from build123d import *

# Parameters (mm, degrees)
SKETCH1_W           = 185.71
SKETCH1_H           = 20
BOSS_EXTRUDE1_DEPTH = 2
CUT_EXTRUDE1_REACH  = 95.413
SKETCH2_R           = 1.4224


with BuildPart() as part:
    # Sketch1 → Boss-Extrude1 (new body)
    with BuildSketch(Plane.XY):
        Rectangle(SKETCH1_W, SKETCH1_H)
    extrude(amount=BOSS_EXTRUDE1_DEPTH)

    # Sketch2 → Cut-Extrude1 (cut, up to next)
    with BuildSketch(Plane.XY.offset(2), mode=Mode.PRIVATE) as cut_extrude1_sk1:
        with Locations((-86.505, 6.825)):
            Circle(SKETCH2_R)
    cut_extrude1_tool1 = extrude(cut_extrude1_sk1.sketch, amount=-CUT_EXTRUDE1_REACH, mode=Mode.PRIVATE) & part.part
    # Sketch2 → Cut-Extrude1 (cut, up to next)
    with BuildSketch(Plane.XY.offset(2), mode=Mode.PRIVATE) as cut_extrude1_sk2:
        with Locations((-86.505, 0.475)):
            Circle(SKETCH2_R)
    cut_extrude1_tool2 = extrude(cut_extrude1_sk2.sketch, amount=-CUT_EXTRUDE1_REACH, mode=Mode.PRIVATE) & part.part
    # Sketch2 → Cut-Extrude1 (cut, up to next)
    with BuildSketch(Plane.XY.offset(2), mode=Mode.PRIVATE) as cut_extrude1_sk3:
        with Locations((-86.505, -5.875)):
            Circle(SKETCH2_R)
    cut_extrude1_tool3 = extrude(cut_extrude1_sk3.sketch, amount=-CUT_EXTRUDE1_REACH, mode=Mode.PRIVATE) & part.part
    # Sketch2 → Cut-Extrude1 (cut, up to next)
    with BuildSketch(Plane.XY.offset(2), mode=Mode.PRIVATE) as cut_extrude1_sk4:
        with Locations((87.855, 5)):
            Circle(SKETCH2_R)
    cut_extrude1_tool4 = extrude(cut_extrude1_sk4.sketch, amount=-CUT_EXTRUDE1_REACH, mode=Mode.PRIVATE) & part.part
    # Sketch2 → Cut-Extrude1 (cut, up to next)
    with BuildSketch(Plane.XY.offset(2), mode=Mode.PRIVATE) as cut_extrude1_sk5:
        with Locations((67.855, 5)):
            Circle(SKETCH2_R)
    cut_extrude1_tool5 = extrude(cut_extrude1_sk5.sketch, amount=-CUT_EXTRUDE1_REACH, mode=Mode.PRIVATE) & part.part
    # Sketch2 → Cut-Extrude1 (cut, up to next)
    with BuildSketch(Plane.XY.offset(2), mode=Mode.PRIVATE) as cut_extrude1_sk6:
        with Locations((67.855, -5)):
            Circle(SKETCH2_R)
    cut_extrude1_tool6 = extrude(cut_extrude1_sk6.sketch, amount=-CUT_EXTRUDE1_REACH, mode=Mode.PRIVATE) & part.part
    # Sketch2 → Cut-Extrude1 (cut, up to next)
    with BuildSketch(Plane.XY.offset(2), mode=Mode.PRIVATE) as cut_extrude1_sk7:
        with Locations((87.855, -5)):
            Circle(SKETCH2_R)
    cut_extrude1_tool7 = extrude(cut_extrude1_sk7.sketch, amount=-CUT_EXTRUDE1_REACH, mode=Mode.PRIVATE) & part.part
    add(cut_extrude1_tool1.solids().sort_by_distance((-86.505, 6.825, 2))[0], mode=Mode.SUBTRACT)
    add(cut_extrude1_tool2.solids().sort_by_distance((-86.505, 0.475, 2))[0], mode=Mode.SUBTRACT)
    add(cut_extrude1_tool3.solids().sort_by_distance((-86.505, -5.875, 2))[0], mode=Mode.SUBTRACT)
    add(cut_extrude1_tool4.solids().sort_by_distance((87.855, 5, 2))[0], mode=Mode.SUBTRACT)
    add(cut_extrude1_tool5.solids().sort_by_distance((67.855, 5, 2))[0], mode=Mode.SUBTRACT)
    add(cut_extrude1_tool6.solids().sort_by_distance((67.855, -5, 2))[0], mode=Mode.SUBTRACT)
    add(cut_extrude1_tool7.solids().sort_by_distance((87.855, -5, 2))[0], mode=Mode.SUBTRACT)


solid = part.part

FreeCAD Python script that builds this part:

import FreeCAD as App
import Part
import Sketcher

V = App.Vector


def add_polygon(sketch, points):
    """Adds a closed chain of lines whose ends are joined by coincident constraints."""
    first, n = sketch.GeometryCount, len(points)
    for a, b in zip(points, points[1:] + points[:1]):
        sketch.addGeometry(Part.LineSegment(App.Vector(*a, 0), App.Vector(*b, 0)), False)
    for i in range(n):
        sketch.addConstraint(Sketcher.Constraint("Coincident", first + i, 2, first + (i + 1) % n, 1))

doc = App.newDocument("Part")
body = doc.addObject("PartDesign::Body", "Body")

sketch1 = body.newObject("Sketcher::SketchObject", "Sketch")
sketch1.AttachmentSupport = (doc.getObject("XY_Plane"), [""])
sketch1.MapMode = "FlatFace"
add_polygon(sketch1, [(-93, 10), (-93, -10), (93, -10), (93, 10)])
sketch1.addConstraint([
    Sketcher.Constraint("Vertical", 0),
    Sketcher.Constraint("Horizontal", 1),
    Sketcher.Constraint("Vertical", 2),
    Sketcher.Constraint("Horizontal", 3),
    Sketcher.Constraint("Symmetric", 0, 2, 2, 2, -1, 1),
    Sketcher.Constraint("DistanceY", 0, 2, 0, 1, 20.0),
    Sketcher.Constraint("DistanceX", 1, 1, 1, 2, 185.71),
])
pad1 = body.newObject("PartDesign::Pad", "Pad")
pad1.Profile = sketch1
pad1.Length = 2

sketch2 = body.newObject("Sketcher::SketchObject", "Sketch001")
sketch2.AttachmentSupport = (doc.getObject("XY_Plane"), [""])
sketch2.MapMode = "FlatFace"
sketch2.AttachmentOffset = App.Placement(V(0, 0, 2), App.Rotation())
sketch2.addGeometry(Part.Circle(V(-86.5, 6.8, 0), V(0, 0, 1), 1.4), False)
sketch2.addConstraint([
    Sketcher.Constraint("Diameter", 0, 2.8448),
    Sketcher.Constraint("DistanceX", 0, 3, -1, 1, 86.505),
    Sketcher.Constraint("DistanceY", -1, 1, 0, 3, 6.825),
])
pocket1 = body.newObject("PartDesign::Pocket", "Pocket")
pocket1.Profile = sketch2
pocket1.Type = "UpToFirst"

sketch3 = body.newObject("Sketcher::SketchObject", "Sketch002")
sketch3.AttachmentSupport = (doc.getObject("XY_Plane"), [""])
sketch3.MapMode = "FlatFace"
sketch3.AttachmentOffset = App.Placement(V(0, 0, 2), App.Rotation())
sketch3.addGeometry(Part.Circle(V(-86.5, 0.5, 0), V(0, 0, 1), 1.4), False)
sketch3.addConstraint([
    Sketcher.Constraint("Diameter", 0, 2.8448),
    Sketcher.Constraint("DistanceX", 0, 3, -1, 1, 86.505),
    Sketcher.Constraint("DistanceY", -1, 1, 0, 3, 0.475),
])
pocket2 = body.newObject("PartDesign::Pocket", "Pocket001")
pocket2.Profile = sketch3
pocket2.Type = "UpToFirst"

sketch4 = body.newObject("Sketcher::SketchObject", "Sketch003")
sketch4.AttachmentSupport = (doc.getObject("XY_Plane"), [""])
sketch4.MapMode = "FlatFace"
sketch4.AttachmentOffset = App.Placement(V(0, 0, 2), App.Rotation())
sketch4.addGeometry(Part.Circle(V(-86.5, -5.9, 0), V(0, 0, 1), 1.4), False)
sketch4.addConstraint([
    Sketcher.Constraint("Diameter", 0, 2.8448),
    Sketcher.Constraint("DistanceX", 0, 3, -1, 1, 86.505),
    Sketcher.Constraint("DistanceY", 0, 3, -1, 1, 5.875),
])
pocket3 = body.newObject("PartDesign::Pocket", "Pocket002")
pocket3.Profile = sketch4
pocket3.Type = "UpToFirst"

sketch5 = body.newObject("Sketcher::SketchObject", "Sketch004")
sketch5.AttachmentSupport = (doc.getObject("XY_Plane"), [""])
sketch5.MapMode = "FlatFace"
sketch5.AttachmentOffset = App.Placement(V(0, 0, 2), App.Rotation())
sketch5.addGeometry(Part.Circle(V(87.9, 5, 0), V(0, 0, 1), 1.4), False)
sketch5.addConstraint([
    Sketcher.Constraint("DistanceY", -1, 1, 0, 3, 5.0),
    Sketcher.Constraint("Diameter", 0, 2.8448),
    Sketcher.Constraint("DistanceX", -1, 1, 0, 3, 87.855),
])
pocket4 = body.newObject("PartDesign::Pocket", "Pocket003")
pocket4.Profile = sketch5
pocket4.Type = "UpToFirst"

sketch6 = body.newObject("Sketcher::SketchObject", "Sketch005")
sketch6.AttachmentSupport = (doc.getObject("XY_Plane"), [""])
sketch6.MapMode = "FlatFace"
sketch6.AttachmentOffset = App.Placement(V(0, 0, 2), App.Rotation())
sketch6.addGeometry(Part.Circle(V(67.9, 5, 0), V(0, 0, 1), 1.4), False)
sketch6.addConstraint([
    Sketcher.Constraint("DistanceY", -1, 1, 0, 3, 5.0),
    Sketcher.Constraint("Diameter", 0, 2.8448),
    Sketcher.Constraint("DistanceX", -1, 1, 0, 3, 67.855),
])
pocket5 = body.newObject("PartDesign::Pocket", "Pocket004")
pocket5.Profile = sketch6
pocket5.Type = "UpToFirst"

sketch7 = body.newObject("Sketcher::SketchObject", "Sketch006")
sketch7.AttachmentSupport = (doc.getObject("XY_Plane"), [""])
sketch7.MapMode = "FlatFace"
sketch7.AttachmentOffset = App.Placement(V(0, 0, 2), App.Rotation())
sketch7.addGeometry(Part.Circle(V(67.9, -5, 0), V(0, 0, 1), 1.4), False)
sketch7.addConstraint([
    Sketcher.Constraint("DistanceY", 0, 3, -1, 1, 5.0),
    Sketcher.Constraint("Diameter", 0, 2.8448),
    Sketcher.Constraint("DistanceX", -1, 1, 0, 3, 67.855),
])
pocket6 = body.newObject("PartDesign::Pocket", "Pocket005")
pocket6.Profile = sketch7
pocket6.Type = "UpToFirst"

sketch8 = body.newObject("Sketcher::SketchObject", "Sketch007")
sketch8.AttachmentSupport = (doc.getObject("XY_Plane"), [""])
sketch8.MapMode = "FlatFace"
sketch8.AttachmentOffset = App.Placement(V(0, 0, 2), App.Rotation())
sketch8.addGeometry(Part.Circle(V(87.9, -5, 0), V(0, 0, 1), 1.4), False)
sketch8.addConstraint([
    Sketcher.Constraint("DistanceY", 0, 3, -1, 1, 5.0),
    Sketcher.Constraint("Diameter", 0, 2.8448),
    Sketcher.Constraint("DistanceX", -1, 1, 0, 3, 87.855),
])
pocket7 = body.newObject("PartDesign::Pocket", "Pocket006")
pocket7.Profile = sketch8
pocket7.Type = "UpToFirst"

doc.recompute()
